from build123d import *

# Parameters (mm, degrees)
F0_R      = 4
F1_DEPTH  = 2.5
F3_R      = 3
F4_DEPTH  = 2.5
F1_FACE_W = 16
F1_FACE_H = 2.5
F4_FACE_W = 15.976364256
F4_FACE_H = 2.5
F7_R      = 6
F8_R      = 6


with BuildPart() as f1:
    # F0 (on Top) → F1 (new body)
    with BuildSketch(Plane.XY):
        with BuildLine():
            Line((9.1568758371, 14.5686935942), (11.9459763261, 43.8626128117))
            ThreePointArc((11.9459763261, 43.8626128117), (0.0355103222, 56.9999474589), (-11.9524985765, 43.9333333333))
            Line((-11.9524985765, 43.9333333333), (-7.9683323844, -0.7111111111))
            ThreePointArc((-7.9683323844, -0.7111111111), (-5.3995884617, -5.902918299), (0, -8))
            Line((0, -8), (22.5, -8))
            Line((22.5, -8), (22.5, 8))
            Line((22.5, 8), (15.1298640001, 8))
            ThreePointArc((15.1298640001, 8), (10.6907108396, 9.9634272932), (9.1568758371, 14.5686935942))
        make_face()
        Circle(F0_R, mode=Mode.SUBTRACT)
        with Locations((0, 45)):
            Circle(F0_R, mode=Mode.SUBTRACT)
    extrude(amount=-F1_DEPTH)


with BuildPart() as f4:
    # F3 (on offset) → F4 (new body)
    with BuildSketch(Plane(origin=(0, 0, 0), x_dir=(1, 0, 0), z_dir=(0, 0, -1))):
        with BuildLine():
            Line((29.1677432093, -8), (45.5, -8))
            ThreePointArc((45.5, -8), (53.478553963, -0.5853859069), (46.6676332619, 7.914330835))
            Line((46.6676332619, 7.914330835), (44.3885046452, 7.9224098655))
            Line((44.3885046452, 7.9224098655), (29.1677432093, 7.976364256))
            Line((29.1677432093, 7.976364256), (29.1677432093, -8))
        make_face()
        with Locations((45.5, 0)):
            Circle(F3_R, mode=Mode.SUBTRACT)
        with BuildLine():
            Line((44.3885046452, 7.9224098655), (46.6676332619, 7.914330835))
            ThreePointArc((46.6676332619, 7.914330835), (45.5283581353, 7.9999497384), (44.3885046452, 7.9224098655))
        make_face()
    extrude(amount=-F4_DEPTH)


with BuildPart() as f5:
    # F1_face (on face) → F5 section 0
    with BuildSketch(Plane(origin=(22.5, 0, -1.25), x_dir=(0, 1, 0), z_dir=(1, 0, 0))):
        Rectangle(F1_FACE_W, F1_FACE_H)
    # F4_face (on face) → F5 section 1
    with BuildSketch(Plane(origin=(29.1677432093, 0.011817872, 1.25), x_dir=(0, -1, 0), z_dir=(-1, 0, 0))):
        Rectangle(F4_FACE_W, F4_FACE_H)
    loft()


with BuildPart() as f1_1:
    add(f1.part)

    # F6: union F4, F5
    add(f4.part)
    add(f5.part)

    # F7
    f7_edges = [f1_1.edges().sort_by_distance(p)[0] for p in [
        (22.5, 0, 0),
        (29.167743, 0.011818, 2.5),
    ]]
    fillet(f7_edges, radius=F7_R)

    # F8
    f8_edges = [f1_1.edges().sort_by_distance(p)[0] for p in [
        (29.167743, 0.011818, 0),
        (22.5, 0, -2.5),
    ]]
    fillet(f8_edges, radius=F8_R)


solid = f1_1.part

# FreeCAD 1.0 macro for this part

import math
import FreeCAD as App
import Part
import Sketcher
from FreeCAD import Vector


def edges_at(feature, points):
    """Names of the edges that pass closest to the given points."""
    edges = feature.Shape.Edges
    near = lambda p: min(range(len(edges)), key=lambda i: edges[i].distToShape(Part.Vertex(*p))[0])
    return sorted({f"Edge{near(p) + 1}" for p in points})

doc = App.newDocument("Part")
body = doc.addObject("PartDesign::Body", "Body")

# Sketch on XY plane
sketch1 = body.newObject("Sketcher::SketchObject", "Sketch")
sketch1.AttachmentSupport = (doc.getObject("XY_Plane"), [""])
sketch1.MapMode = "FlatFace"
sketch1.addGeometry([
    Part.LineSegment(Vector(9.156876, 14.568694, 0), Vector(11.945976, 43.862613, 0)),  # 0
    Part.ArcOfCircle(Part.Circle(Vector(0, 45, 0), Vector(0, 0, 1), 12), math.radians(-5.438788), math.radians(185.099689)),  # 1
    Part.LineSegment(Vector(-11.952499, 43.933333, 0), Vector(-7.968332, -0.711111, 0)),  # 2
    Part.ArcOfCircle(Part.Circle(Vector(0, 0, 0), Vector(0, 0, 1), 8), math.radians(-174.900311), math.radians(-90)),  # 3
    Part.LineSegment(Vector(0, -8, 0), Vector(22.5, -8, 0)),  # 4
    Part.LineSegment(Vector(22.5, -8, 0), Vector(22.5, 8, 0)),  # 5
    Part.LineSegment(Vector(22.5, 8, 0), Vector(15.129864, 8, 0)),  # 6
    Part.ArcOfCircle(Part.Circle(Vector(15.129864, 14, 0), Vector(0, 0, 1), 6), math.radians(174.561212), math.radians(270)),  # 7
    Part.Circle(Vector(0, 0, 0), Vector(0, 0, 1), 4),  # 8
    Part.Circle(Vector(0, 45, 0), Vector(0, 0, 1), 4),  # 9
], False)
sketch1.addConstraint([
    Sketcher.Constraint("Tangent", 0, 2, 1, 1),
    Sketcher.Constraint("Tangent", 1, 2, 2, 1),
    Sketcher.Constraint("Tangent", 2, 2, 3, 1),
    Sketcher.Constraint("Tangent", 3, 2, 4, 1),
    Sketcher.Constraint("Coincident", 4, 2, 5, 1),
    Sketcher.Constraint("Coincident", 5, 2, 6, 1),
    Sketcher.Constraint("Tangent", 6, 2, 7, 2),
    Sketcher.Constraint("Tangent", 7, 1, 0, 1),
    Sketcher.Constraint("Horizontal", 4),
    Sketcher.Constraint("Vertical", 5),
    Sketcher.Constraint("Horizontal", 6),
    Sketcher.Constraint("Coincident", 3, 3, -1, 1),
    Sketcher.Constraint("Coincident", 8, 3, -1, 1),
    Sketcher.Constraint("Coincident", 9, 3, 1, 3),
    Sketcher.Constraint("Equal", 8, 9),
    Sketcher.Constraint("PointOnObject", 1, 3, -2),
    Sketcher.Constraint("Diameter", 8, 8.0),
    Sketcher.Constraint("Radius", 1, 12.0),
    Sketcher.Constraint("Radius", 3, 8.0),
    Sketcher.Constraint("Radius", 7, 6.0),
    Sketcher.Constraint("DistanceY", 5, 1, 5, 2, 16.0),
    Sketcher.Constraint("DistanceX", 4, 1, 4, 2, 22.5),
    Sketcher.Constraint("DistanceY", -1, 1, 1, 3, 45.0),
    Sketcher.Constraint("DistanceX", 6, 2, 6, 1, 7.370136),
])
pad1 = body.newObject("PartDesign::Pad", "Pad")
pad1.Profile = sketch1
pad1.Length = 2.5
pad1.Reversed = True
body2 = doc.addObject("PartDesign::Body", "Body001")

# Sketch on XY plane
sketch2 = body2.newObject("Sketcher::SketchObject", "Sketch001")
sketch2.AttachmentSupport = (doc.getObject("XY_Plane001"), [""])
sketch2.MapMode = "FlatFace"
sketch2.addGeometry([
    Part.LineSegment(Vector(29.167743, 8, 0), Vector(45.5, 8, 0)),  # 0
    Part.ArcOfCircle(Part.Circle(Vector(45.5, 0, 0), Vector(0, 0, 1), 8), math.radians(-81.607464), math.radians(90)),  # 1
    Part.ArcOfCircle(Part.Circle(Vector(45.5, 0, 0), Vector(0, 0, 1), 8), math.radians(-97.986335), math.radians(-81.607464)),  # 2
    Part.LineSegment(Vector(44.388505, -7.92241, 0), Vector(29.167743, -7.976364, 0)),  # 3
    Part.LineSegment(Vector(29.167743, -7.976364, 0), Vector(29.167743, 8, 0)),  # 4
    Part.Circle(Vector(45.5, 0, 0), Vector(0, 0, 1), 3),  # 5
], False)
sketch2.addConstraint([
    Sketcher.Constraint("Tangent", 0, 2, 1, 2),
    Sketcher.Constraint("Tangent", 1, 1, 2, 2),
    Sketcher.Constraint("Coincident", 2, 1, 3, 1),
    Sketcher.Constraint("Coincident", 3, 2, 4, 1),
    Sketcher.Constraint("Coincident", 4, 2, 0, 1),
    Sketcher.Constraint("Horizontal", 0),
    Sketcher.Constraint("Vertical", 4),
    Sketcher.Constraint("Coincident", 5, 3, 1, 3),
    Sketcher.Constraint("Equal", 1, 2),
    Sketcher.Constraint("PointOnObject", 1, 3, -1),
    Sketcher.Constraint("Diameter", 5, 6.0),
    Sketcher.Constraint("Radius", 1, 8.0),
    Sketcher.Constraint("DistanceX", -1, 1, 1, 3, 45.5),
    Sketcher.Constraint("DistanceX", 0, 1, 0, 2, 16.332257),
    Sketcher.Constraint("DistanceY", 4, 1, 4, 2, 15.976364),
    Sketcher.Constraint("DistanceY", 1, 1, -1, 1, 7.914331),
    Sketcher.Constraint("DistanceY", 2, 1, -1, 1, 7.92241),
])
pad2 = body2.newObject("PartDesign::Pad", "Pad001")
pad2.Profile = sketch2
pad2.Length = 2.5
body3 = doc.addObject("PartDesign::Body", "Body002")

# Sketch on YZ plane
sketch3 = body3.newObject("Sketcher::SketchObject", "Sketch002")
sketch3.AttachmentSupport = (doc.getObject("YZ_Plane002"), [""])
sketch3.MapMode = "FlatFace"
sketch3.AttachmentOffset = App.Placement(Vector(0, 0, 22.5), App.Rotation())
sketch3.addGeometry([
    Part.LineSegment(Vector(-8, 0, 0), Vector(-8, -2.5, 0)),
    Part.LineSegment(Vector(-8, -2.5, 0), Vector(8, -2.5, 0)),
    Part.LineSegment(Vector(8, -2.5, 0), Vector(8, 0, 0)),
    Part.LineSegment(Vector(8, 0, 0), Vector(-8, 0, 0)),
], False)
sketch3.addConstraint([
    Sketcher.Constraint("Coincident", 0, 2, 1, 1),
    Sketcher.Constraint("Coincident", 1, 2, 2, 1),
    Sketcher.Constraint("Coincident", 2, 2, 3, 1),
    Sketcher.Constraint("Coincident", 3, 2, 0, 1),
    Sketcher.Constraint("Vertical", 0),
    Sketcher.Constraint("Horizontal", 1),
    Sketcher.Constraint("Vertical", 2),
    Sketcher.Constraint("Horizontal", 3),
    Sketcher.Constraint("Symmetric", 2, 2, 3, 2, -1, 1),
    Sketcher.Constraint("DistanceX", 1, 1, 1, 2, 16.0),
    Sketcher.Constraint("DistanceY", 0, 2, 0, 1, 2.5),
])

# Sketch on YZ plane
sketch4 = body3.newObject("Sketcher::SketchObject", "Sketch003")
sketch4.AttachmentSupport = (doc.getObject("YZ_Plane002"), [""])
sketch4.MapMode = "FlatFace"
sketch4.AttachmentOffset = App.Placement(Vector(0, 0, 29.167743), App.Rotation())
sketch4.addGeometry([
    Part.LineSegment(Vector(8, 2.5, 0), Vector(8, 0, 0)),
    Part.LineSegment(Vector(8, 0, 0), Vector(-7.976364, 0, 0)),
    Part.LineSegment(Vector(-7.976364, 0, 0), Vector(-7.976364, 2.5, 0)),
    Part.LineSegment(Vector(-7.976364, 2.5, 0), Vector(8, 2.5, 0)),
], False)
sketch4.addConstraint([
    Sketcher.Constraint("Coincident", 0, 2, 1, 1),
    Sketcher.Constraint("Coincident", 1, 2, 2, 1),
    Sketcher.Constraint("Coincident", 2, 2, 3, 1),
    Sketcher.Constraint("Coincident", 3, 2, 0, 1),
    Sketcher.Constraint("Vertical", 0),
    Sketcher.Constraint("Horizontal", 1),
    Sketcher.Constraint("Vertical", 2),
    Sketcher.Constraint("Horizontal", 3),
    Sketcher.Constraint("PointOnObject", 0, 2, -1),
    Sketcher.Constraint("DistanceY", 0, 2, 0, 1, 2.5),
    Sketcher.Constraint("DistanceX", -1, 1, 0, 2, 8.0),
    Sketcher.Constraint("DistanceX", 1, 2, 1, 1, 15.976364),
])

additiveloft = body3.newObject("PartDesign::AdditiveLoft", "AdditiveLoft")
additiveloft.Profile = sketch3
additiveloft.Sections = [sketch4]
body.AllowCompound = True
doc.recompute()

boolean = body.newObject("PartDesign::Boolean", "Boolean")
boolean.Type = "Fuse"
boolean.addObjects([body2])
doc.recompute()

boolean2 = body.newObject("PartDesign::Boolean", "Boolean001")
boolean2.Type = "Fuse"
boolean2.addObjects([body3])
doc.recompute()

fillet = body.newObject("PartDesign::Fillet", "Fillet")
fillet.Base = (boolean2, edges_at(boolean2, [(22.5, 0, 0), (29.168, 0.012, 2.5)]))
fillet.Radius = 6
doc.recompute()

fillet2 = body.newObject("PartDesign::Fillet", "Fillet001")
fillet2.Base = (fillet, edges_at(fillet, [(29.168, 0.012, 0), (22.5, 0, -2.5)]))
fillet2.Radius = 6

doc.recompute()
